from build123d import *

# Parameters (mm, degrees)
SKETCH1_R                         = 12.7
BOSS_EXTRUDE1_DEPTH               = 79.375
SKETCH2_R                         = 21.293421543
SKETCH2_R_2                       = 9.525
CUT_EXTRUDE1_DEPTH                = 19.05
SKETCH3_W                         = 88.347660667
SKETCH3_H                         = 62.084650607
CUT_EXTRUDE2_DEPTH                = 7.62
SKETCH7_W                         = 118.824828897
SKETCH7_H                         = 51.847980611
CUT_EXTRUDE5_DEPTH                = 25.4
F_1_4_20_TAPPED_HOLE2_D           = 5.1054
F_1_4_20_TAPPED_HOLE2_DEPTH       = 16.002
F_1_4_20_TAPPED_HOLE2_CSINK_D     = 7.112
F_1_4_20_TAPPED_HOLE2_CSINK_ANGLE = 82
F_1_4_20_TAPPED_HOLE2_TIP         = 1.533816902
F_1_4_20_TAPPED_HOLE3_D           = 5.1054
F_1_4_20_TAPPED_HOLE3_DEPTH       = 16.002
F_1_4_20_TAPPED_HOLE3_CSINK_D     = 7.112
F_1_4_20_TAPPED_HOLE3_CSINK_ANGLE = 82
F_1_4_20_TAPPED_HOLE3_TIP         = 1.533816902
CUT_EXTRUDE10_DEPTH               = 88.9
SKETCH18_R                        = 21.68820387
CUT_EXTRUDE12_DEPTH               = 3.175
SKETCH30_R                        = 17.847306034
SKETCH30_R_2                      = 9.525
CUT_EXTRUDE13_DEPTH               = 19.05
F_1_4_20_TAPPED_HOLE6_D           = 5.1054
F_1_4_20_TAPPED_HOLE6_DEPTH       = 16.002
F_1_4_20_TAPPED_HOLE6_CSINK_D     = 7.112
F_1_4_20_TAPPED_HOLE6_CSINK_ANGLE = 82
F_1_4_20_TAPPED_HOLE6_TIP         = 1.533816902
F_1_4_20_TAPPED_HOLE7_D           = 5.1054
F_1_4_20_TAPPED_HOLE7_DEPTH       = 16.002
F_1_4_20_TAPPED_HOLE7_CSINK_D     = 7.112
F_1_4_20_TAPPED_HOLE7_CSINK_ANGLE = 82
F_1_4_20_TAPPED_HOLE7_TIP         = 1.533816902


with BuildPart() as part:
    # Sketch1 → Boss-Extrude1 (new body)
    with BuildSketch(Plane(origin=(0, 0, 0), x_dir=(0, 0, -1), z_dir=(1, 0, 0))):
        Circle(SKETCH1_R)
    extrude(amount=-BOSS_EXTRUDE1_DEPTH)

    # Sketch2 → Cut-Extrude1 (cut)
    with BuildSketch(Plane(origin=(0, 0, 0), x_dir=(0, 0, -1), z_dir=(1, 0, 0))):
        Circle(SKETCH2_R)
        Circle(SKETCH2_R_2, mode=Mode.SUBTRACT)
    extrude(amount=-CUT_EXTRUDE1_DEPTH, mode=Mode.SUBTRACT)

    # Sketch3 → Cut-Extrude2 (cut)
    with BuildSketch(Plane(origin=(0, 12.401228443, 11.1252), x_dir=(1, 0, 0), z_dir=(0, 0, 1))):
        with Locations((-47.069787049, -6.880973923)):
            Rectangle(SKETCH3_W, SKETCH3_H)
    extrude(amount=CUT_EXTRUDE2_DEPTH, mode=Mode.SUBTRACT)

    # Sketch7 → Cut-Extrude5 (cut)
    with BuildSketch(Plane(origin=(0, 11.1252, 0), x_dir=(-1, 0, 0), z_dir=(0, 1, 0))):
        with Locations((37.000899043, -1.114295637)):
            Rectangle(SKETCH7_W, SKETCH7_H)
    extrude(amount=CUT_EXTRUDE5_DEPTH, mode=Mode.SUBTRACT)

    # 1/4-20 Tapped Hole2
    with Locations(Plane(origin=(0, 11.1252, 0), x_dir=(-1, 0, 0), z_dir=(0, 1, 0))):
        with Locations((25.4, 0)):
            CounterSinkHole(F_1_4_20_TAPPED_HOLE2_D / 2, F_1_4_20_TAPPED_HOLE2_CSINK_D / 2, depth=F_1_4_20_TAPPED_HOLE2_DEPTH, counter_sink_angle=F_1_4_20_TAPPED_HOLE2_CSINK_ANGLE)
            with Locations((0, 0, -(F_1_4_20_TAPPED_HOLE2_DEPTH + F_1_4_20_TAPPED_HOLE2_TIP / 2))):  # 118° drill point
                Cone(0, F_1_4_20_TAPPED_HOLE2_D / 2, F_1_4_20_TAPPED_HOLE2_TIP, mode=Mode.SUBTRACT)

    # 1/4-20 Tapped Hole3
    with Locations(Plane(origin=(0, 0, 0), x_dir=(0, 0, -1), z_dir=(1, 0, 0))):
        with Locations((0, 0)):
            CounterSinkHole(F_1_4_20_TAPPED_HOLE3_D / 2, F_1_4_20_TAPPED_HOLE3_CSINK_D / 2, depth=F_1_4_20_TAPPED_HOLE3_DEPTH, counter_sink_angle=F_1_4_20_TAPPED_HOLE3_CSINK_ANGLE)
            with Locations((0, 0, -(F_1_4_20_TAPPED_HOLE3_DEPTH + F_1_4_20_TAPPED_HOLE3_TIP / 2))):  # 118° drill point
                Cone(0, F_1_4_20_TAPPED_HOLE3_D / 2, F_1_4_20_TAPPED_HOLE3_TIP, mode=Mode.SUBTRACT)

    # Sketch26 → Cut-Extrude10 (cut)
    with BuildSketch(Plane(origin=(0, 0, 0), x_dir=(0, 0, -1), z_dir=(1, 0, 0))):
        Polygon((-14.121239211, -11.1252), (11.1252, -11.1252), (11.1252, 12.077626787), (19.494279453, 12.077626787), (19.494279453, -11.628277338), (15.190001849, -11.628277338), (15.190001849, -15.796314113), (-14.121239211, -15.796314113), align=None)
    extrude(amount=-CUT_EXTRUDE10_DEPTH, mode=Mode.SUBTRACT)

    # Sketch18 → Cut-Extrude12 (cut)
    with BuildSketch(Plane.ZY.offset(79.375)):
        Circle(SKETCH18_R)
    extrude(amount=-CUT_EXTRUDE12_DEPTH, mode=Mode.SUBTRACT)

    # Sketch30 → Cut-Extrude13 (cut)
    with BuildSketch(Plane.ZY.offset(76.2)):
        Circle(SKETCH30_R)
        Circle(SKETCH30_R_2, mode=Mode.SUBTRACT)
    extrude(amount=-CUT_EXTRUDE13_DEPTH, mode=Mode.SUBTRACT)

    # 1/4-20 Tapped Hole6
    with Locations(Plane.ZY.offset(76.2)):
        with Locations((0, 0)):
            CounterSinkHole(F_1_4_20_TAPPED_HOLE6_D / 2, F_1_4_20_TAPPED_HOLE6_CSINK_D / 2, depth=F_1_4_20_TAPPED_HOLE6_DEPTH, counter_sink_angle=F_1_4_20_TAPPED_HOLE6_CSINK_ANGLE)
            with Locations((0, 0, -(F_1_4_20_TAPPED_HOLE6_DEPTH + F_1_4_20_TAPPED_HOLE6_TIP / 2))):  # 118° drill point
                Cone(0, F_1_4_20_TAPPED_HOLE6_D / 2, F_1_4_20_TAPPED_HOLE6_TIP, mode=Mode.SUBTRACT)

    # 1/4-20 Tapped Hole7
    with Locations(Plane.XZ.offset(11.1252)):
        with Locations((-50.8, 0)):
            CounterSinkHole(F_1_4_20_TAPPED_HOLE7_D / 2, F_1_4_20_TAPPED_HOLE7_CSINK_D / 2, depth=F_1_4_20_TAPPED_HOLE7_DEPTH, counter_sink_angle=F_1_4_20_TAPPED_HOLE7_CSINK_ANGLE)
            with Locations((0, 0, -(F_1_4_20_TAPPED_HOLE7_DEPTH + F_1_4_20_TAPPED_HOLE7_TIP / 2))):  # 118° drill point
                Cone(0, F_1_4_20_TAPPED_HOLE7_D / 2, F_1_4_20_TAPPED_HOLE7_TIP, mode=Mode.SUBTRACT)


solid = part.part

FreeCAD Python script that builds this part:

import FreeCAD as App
import Part
import Sketcher
from FreeCAD import Vector
Q = App.Units.Quantity

doc = App.newDocument("Part")
params = doc.addObject("Spreadsheet::Sheet", "Params")
for row, (alias, value) in enumerate([
    ("sketch1_diameter", "1 in"),
    ("pad1_length", "3.125 in"),
    ("sketch2_diameter", "0.75 in"),
    ("pocket1_length", "0.75 in"),
    ("pocket2_length", "0.3 in"),
    ("pocket3_length", "1 in"),
    ("sketch5_diameter", "0.201 in"),
    ("hole_diameter", "0.201 in"),
    ("hole_depth", "0.63 in"),
    ("hole_csink_diameter", "0.28 in"),
    ("sketch6_diameter", "0.201 in"),
    ("hole2_diameter", "0.201 in"),
    ("hole2_depth", "0.63 in"),
    ("hole2_csink_diameter", "0.28 in"),
    ("pocket4_length", "3.5 in"),
    ("pocket5_length", "0.125 in"),
    ("sketch9_diameter", "0.75 in"),
    ("pocket6_length", "0.75 in"),
    ("sketch10_diameter", "0.201 in"),
    ("hole3_diameter", "0.201 in"),
    ("hole3_depth", "0.63 in"),
    ("hole3_csink_diameter", "0.28 in"),
    ("sketch11_diameter", "0.201 in"),
    ("hole4_diameter", "0.201 in"),
    ("hole4_depth", "0.63 in"),
    ("hole4_csink_diameter", "0.28 in"),
], start=1):
    params.set(f"A{row}", alias)
    params.set(f"B{row}", "=" + value)
    params.setAlias(f"B{row}", alias)

body = doc.addObject("PartDesign::Body", "Body")

# Sketch on YZ plane
sketch1 = body.newObject("Sketcher::SketchObject", "Sketch")
sketch1.AttachmentSupport = (doc.getObject("YZ_Plane"), [""])
sketch1.MapMode = "FlatFace"
sketch1.addGeometry(Part.Circle(Vector(0, 0, 0), Vector(0, 0, 1), 12.7), False)
sketch1.addConstraint([
    Sketcher.Constraint("Coincident", 0, 3, -1, 1),
    Sketcher.Constraint("Diameter", 0, Q("1 in")),
])
sketch1.setExpression("Constraints[1]", "Params.sketch1_diameter")
pad1 = body.newObject("PartDesign::Pad", "Pad")
pad1.Profile = sketch1
pad1.setExpression("Length", "Params.pad1_length")
pad1.Reversed = True

# Sketch on YZ plane
sketch2 = body.newObject("Sketcher::SketchObject", "Sketch001")
sketch2.AttachmentSupport = (doc.getObject("YZ_Plane"), [""])
sketch2.MapMode = "FlatFace"
sketch2.addGeometry([
    Part.Circle(Vector(0, 0, 0), Vector(0, 0, 1), 21.293422),
    Part.Circle(Vector(0, 0, 0), Vector(0, 0, 1), 9.525),
], False)
sketch2.addConstraint([
    Sketcher.Constraint("Coincident", 0, 3, -1, 1),
    Sketcher.Constraint("Coincident", 1, 3, -1, 1),
    Sketcher.Constraint("Diameter", 1, Q("0.75 in")),
    Sketcher.Constraint("Diameter", 0, Q("42.586843 mm")),
])
sketch2.setExpression("Constraints[2]", "Params.sketch2_diameter")
pocket1 = body.newObject("PartDesign::Pocket", "Pocket")
pocket1.Profile = sketch2
pocket1.setExpression("Length", "Params.pocket1_length")

# Sketch on XY plane
sketch3 = body.newObject("Sketcher::SketchObject", "Sketch002")
sketch3.AttachmentSupport = (doc.getObject("XY_Plane"), [""])
sketch3.MapMode = "FlatFace"
sketch3.AttachmentOffset = App.Placement(Vector(0, 0, 0.438 * 25.4), App.Rotation())
sketch3.addGeometry([
    Part.LineSegment(Vector(-91.243617, 36.56258, 0), Vector(-91.243617, -25.522071, 0)),
    Part.LineSegment(Vector(-91.243617, -25.522071, 0), Vector(-2.895957, -25.522071, 0)),
    Part.LineSegment(Vector(-2.895957, -25.522071, 0), Vector(-2.895957, 36.56258, 0)),
    Part.LineSegment(Vector(-2.895957, 36.56258, 0), Vector(-91.243617, 36.56258, 0)),
], False)
sketch3.addConstraint([
    Sketcher.Constraint("Coincident", 0, 2, 1, 1),
    Sketcher.Constraint("Coincident", 1, 2, 2, 1),
    Sketcher.Constraint("Coincident", 2, 2, 3, 1),
    Sketcher.Constraint("Coincident", 3, 2, 0, 1),
    Sketcher.Constraint("Vertical", 0),
    Sketcher.Constraint("Horizontal", 1),
    Sketcher.Constraint("Vertical", 2),
    Sketcher.Constraint("Horizontal", 3),
    Sketcher.Constraint("DistanceX", 1, 1, 1, 2, Q("88.347661 mm")),
    Sketcher.Constraint("DistanceY", 0, 2, 0, 1, Q("62.084651 mm")),
    Sketcher.Constraint("DistanceY", 0, 2, -1, 1, Q("25.522071 mm")),
    Sketcher.Constraint("DistanceX", 0, 2, -1, 1, Q("91.243617 mm")),
])
pocket2 = body.newObject("PartDesign::Pocket", "Pocket001")
pocket2.Profile = sketch3
pocket2.setExpression("Length", "Params.pocket2_length")
pocket2.Reversed = True

# Sketch on XZ plane
sketch4 = body.newObject("Sketcher::SketchObject", "Sketch003")
sketch4.AttachmentSupport = (doc.getObject("XZ_Plane"), [""])
sketch4.MapMode = "FlatFace"
sketch4.AttachmentOffset = App.Placement(Vector(0, 0, -0.438 * 25.4), App.Rotation())
sketch4.addGeometry([
    Part.LineSegment(Vector(22.411515, 24.809695, 0), Vector(22.411515, -27.038286, 0)),
    Part.LineSegment(Vector(22.411515, -27.038286, 0), Vector(-96.413313, -27.038286, 0)),
    Part.LineSegment(Vector(-96.413313, -27.038286, 0), Vector(-96.413313, 24.809695, 0)),
    Part.LineSegment(Vector(-96.413313, 24.809695, 0), Vector(22.411515, 24.809695, 0)),
], False)
sketch4.addConstraint([
    Sketcher.Constraint("Coincident", 0, 2, 1, 1),
    Sketcher.Constraint("Coincident", 1, 2, 2, 1),
    Sketcher.Constraint("Coincident", 2, 2, 3, 1),
    Sketcher.Constraint("Coincident", 3, 2, 0, 1),
    Sketcher.Constraint("Vertical", 0),
    Sketcher.Constraint("Horizontal", 1),
    Sketcher.Constraint("Vertical", 2),
    Sketcher.Constraint("Horizontal", 3),
    Sketcher.Constraint("DistanceX", 1, 2, 1, 1, Q("118.824829 mm")),
    Sketcher.Constraint("DistanceY", 0, 2, 0, 1, Q("51.847981 mm")),
    Sketcher.Constraint("DistanceX", -1, 1, 0, 2, Q("22.411515 mm")),
    Sketcher.Constraint("DistanceY", 0, 2, -1, 1, Q("27.038286 mm")),
])
pocket3 = body.newObject("PartDesign::Pocket", "Pocket002")
pocket3.Profile = sketch4
pocket3.setExpression("Length", "Params.pocket3_length")

# Sketch on XZ plane
sketch5 = body.newObject("Sketcher::SketchObject", "Sketch004")
sketch5.AttachmentSupport = (doc.getObject("XZ_Plane"), [""])
sketch5.MapMode = "FlatFace"
sketch5.AttachmentOffset = App.Placement(Vector(0, 0, -0.438 * 25.4), App.Rotation())
sketch5.addGeometry(Part.Circle(Vector(-25.4, 0, 0), Vector(0, 0, 1), 2.5527), False)
sketch5.addConstraint([
    Sketcher.Constraint("PointOnObject", 0, 3, -1),
    Sketcher.Constraint("Diameter", 0, Q("0.201 in")),
    Sketcher.Constraint("DistanceX", 0, 3, -1, 1, Q("1 in")),
])
sketch5.setExpression("Constraints[1]", "Params.sketch5_diameter")
doc.recompute()
hole = body.newObject("PartDesign::Hole", "Hole")
hole.Profile = sketch5
hole.ThreadType = "None"
hole.setExpression("Diameter", "Params.hole_diameter")
hole.DepthType = "Dimension"
hole.setExpression("Depth", "Params.hole_depth")
hole.DrillPoint = "Angled"
hole.DrillPointAngle = 118
hole.HoleCutType = "Countersink"
hole.setExpression("HoleCutDiameter", "Params.hole_csink_diameter")
hole.HoleCutCountersinkAngle = 82
hole.Reversed = True

# Sketch on YZ plane
sketch6 = body.newObject("Sketcher::SketchObject", "Sketch005")
sketch6.AttachmentSupport = (doc.getObject("YZ_Plane"), [""])
sketch6.MapMode = "FlatFace"
sketch6.addGeometry(Part.Circle(Vector(0, 0, 0), Vector(0, 0, 1), 2.5527), False)
sketch6.addConstraint([
    Sketcher.Constraint("Coincident", 0, 3, -1, 1),
    Sketcher.Constraint("Diameter", 0, Q("0.201 in")),
])
sketch6.setExpression("Constraints[1]", "Params.sketch6_diameter")
doc.recompute()
hole2 = body.newObject("PartDesign::Hole", "Hole001")
hole2.Profile = sketch6
hole2.ThreadType = "None"
hole2.setExpression("Diameter", "Params.hole2_diameter")
hole2.DepthType = "Dimension"
hole2.setExpression("Depth", "Params.hole2_depth")
hole2.DrillPoint = "Angled"
hole2.DrillPointAngle = 118
hole2.HoleCutType = "Countersink"
hole2.setExpression("HoleCutDiameter", "Params.hole2_csink_diameter")
hole2.HoleCutCountersinkAngle = 82

# Sketch on YZ plane
sketch7 = body.newObject("Sketcher::SketchObject", "Sketch006")
sketch7.AttachmentSupport = (doc.getObject("YZ_Plane"), [""])
sketch7.MapMode = "FlatFace"
sketch7.addGeometry([
    Part.LineSegment(Vector(-11.1252, -11.1252, 0), Vector(-11.1252, 14.121239, 0)),  # 0
    Part.LineSegment(Vector(-11.1252, 14.121239, 0), Vector(-15.796314, 14.121239, 0)),  # 1
    Part.LineSegment(Vector(-15.796314, 14.121239, 0), Vector(-15.796314, -15.190002, 0)),  # 2
    Part.LineSegment(Vector(-15.796314, -15.190002, 0), Vector(-11.628277, -15.190002, 0)),  # 3
    Part.LineSegment(Vector(-11.628277, -15.190002, 0), Vector(-11.628277, -19.494279, 0)),  # 4
    Part.LineSegment(Vector(-11.628277, -19.494279, 0), Vector(12.077627, -19.494279, 0)),  # 5
    Part.LineSegment(Vector(12.077627, -19.494279, 0), Vector(12.077627, -11.1252, 0)),  # 6
    Part.LineSegment(Vector(12.077627, -11.1252, 0), Vector(-11.1252, -11.1252, 0)),  # 7
], False)
sketch7.addConstraint([
    Sketcher.Constraint("Coincident", 0, 2, 1, 1),
    Sketcher.Constraint("Coincident", 1, 2, 2, 1),
    Sketcher.Constraint("Coincident", 2, 2, 3, 1),
    Sketcher.Constraint("Coincident", 3, 2, 4, 1),
    Sketcher.Constraint("Coincident", 4, 2, 5, 1),
    Sketcher.Constraint("Coincident", 5, 2, 6, 1),
    Sketcher.Constraint("Coincident", 6, 2, 7, 1),
    Sketcher.Constraint("Coincident", 7, 2, 0, 1),
    Sketcher.Constraint("Vertical", 0),
    Sketcher.Constraint("Horizontal", 1),
    Sketcher.Constraint("Vertical", 2),
    Sketcher.Constraint("Horizontal", 3),
    Sketcher.Constraint("Vertical", 4),
    Sketcher.Constraint("Horizontal", 5),
    Sketcher.Constraint("Vertical", 6),
    Sketcher.Constraint("Horizontal", 7),
    Sketcher.Constraint("DistanceX", 0, 2, -1, 1, Q("0.438 in")),
    Sketcher.Constraint("DistanceY", 6, 2, -1, 1, Q("0.438 in")),
    Sketcher.Constraint("DistanceY", 0, 1, 0, 2, Q("25.246439 mm")),
    Sketcher.Constraint("DistanceY", 2, 2, 2, 1, Q("29.311241 mm")),
    Sketcher.Constraint("DistanceY", 6, 1, 6, 2, Q("8.369079 mm")),
    Sketcher.Constraint("DistanceX", 1, 2, 1, 1, Q("4.671114 mm")),
    Sketcher.Constraint("DistanceX", 3, 1, 3, 2, Q("4.168037 mm")),
    Sketcher.Constraint("DistanceX", 5, 1, 5, 2, Q("23.705904 mm")),
])
pocket4 = body.newObject("PartDesign::Pocket", "Pocket003")
pocket4.Profile = sketch7
pocket4.setExpression("Length", "Params.pocket4_length")

# Sketch on YZ plane
sketch8 = body.newObject("Sketcher::SketchObject", "Sketch007")
sketch8.AttachmentSupport = (doc.getObject("YZ_Plane"), [""])
sketch8.MapMode = "FlatFace"
sketch8.AttachmentOffset = App.Placement(Vector(0, 0, -3.125 * 25.4), App.Rotation())
sketch8.addGeometry(Part.Circle(Vector(0, 0, 0), Vector(0, 0, 1), 21.688204), False)
sketch8.addConstraint([
    Sketcher.Constraint("Coincident", 0, 3, -1, 1),
    Sketcher.Constraint("Diameter", 0, Q("43.376408 mm")),
])
pocket5 = body.newObject("PartDesign::Pocket", "Pocket004")
pocket5.Profile = sketch8
pocket5.setExpression("Length", "Params.pocket5_length")
pocket5.Reversed = True

# Sketch on YZ plane
sketch9 = body.newObject("Sketcher::SketchObject", "Sketch008")
sketch9.AttachmentSupport = (doc.getObject("YZ_Plane"), [""])
sketch9.MapMode = "FlatFace"
sketch9.AttachmentOffset = App.Placement(Vector(0, 0, -3 * 25.4), App.Rotation())
sketch9.addGeometry([
    Part.Circle(Vector(0, 0, 0), Vector(0, 0, 1), 17.847306),
    Part.Circle(Vector(0, 0, 0), Vector(0, 0, 1), 9.525),
], False)
sketch9.addConstraint([
    Sketcher.Constraint("Coincident", 0, 3, -1, 1),
    Sketcher.Constraint("Coincident", 1, 3, -1, 1),
    Sketcher.Constraint("Diameter", 1, Q("0.75 in")),
    Sketcher.Constraint("Diameter", 0, Q("35.694612 mm")),
])
sketch9.setExpression("Constraints[2]", "Params.sketch9_diameter")
pocket6 = body.newObject("PartDesign::Pocket", "Pocket005")
pocket6.Profile = sketch9
pocket6.setExpression("Length", "Params.pocket6_length")
pocket6.Reversed = True

# Sketch on YZ plane
sketch10 = body.newObject("Sketcher::SketchObject", "Sketch009")
sketch10.AttachmentSupport = (doc.getObject("YZ_Plane"), [""])
sketch10.MapMode = "FlatFace"
sketch10.AttachmentOffset = App.Placement(Vector(0, 0, -3 * 25.4), App.Rotation())
sketch10.addGeometry(Part.Circle(Vector(0, 0, 0), Vector(0, 0, 1), 2.5527), False)
sketch10.addConstraint([
    Sketcher.Constraint("Coincident", 0, 3, -1, 1),
    Sketcher.Constraint("Diameter", 0, Q("0.201 in")),
])
sketch10.setExpression("Constraints[1]", "Params.sketch10_diameter")
doc.recompute()
hole3 = body.newObject("PartDesign::Hole", "Hole002")
hole3.Profile = sketch10
hole3.ThreadType = "None"
hole3.setExpression("Diameter", "Params.hole3_diameter")
hole3.DepthType = "Dimension"
hole3.setExpression("Depth", "Params.hole3_depth")
hole3.DrillPoint = "Angled"
hole3.DrillPointAngle = 118
hole3.HoleCutType = "Countersink"
hole3.setExpression("HoleCutDiameter", "Params.hole3_csink_diameter")
hole3.HoleCutCountersinkAngle = 82
hole3.Reversed = True

# Sketch on XZ plane
sketch11 = body.newObject("Sketcher::SketchObject", "Sketch010")
sketch11.AttachmentSupport = (doc.getObject("XZ_Plane"), [""])
sketch11.MapMode = "FlatFace"
sketch11.AttachmentOffset = App.Placement(Vector(0, 0, 0.438 * 25.4), App.Rotation())
sketch11.addGeometry(Part.Circle(Vector(-50.8, 0, 0), Vector(0, 0, 1), 2.5527), False)
sketch11.addConstraint([
    Sketcher.Constraint("PointOnObject", 0, 3, -1),
    Sketcher.Constraint("Diameter", 0, Q("0.201 in")),
    Sketcher.Constraint("DistanceX", 0, 3, -1, 1, Q("2 in")),
])
sketch11.setExpression("Constraints[1]", "Params.sketch11_diameter")
doc.recompute()
hole4 = body.newObject("PartDesign::Hole", "Hole003")
hole4.Profile = sketch11
hole4.ThreadType = "None"
hole4.setExpression("Diameter", "Params.hole4_diameter")
hole4.DepthType = "Dimension"
hole4.setExpression("Depth", "Params.hole4_depth")
hole4.DrillPoint = "Angled"
hole4.DrillPointAngle = 118
hole4.HoleCutType = "Countersink"
hole4.setExpression("HoleCutDiameter", "Params.hole4_csink_diameter")
hole4.HoleCutCountersinkAngle = 82

doc.recompute()
